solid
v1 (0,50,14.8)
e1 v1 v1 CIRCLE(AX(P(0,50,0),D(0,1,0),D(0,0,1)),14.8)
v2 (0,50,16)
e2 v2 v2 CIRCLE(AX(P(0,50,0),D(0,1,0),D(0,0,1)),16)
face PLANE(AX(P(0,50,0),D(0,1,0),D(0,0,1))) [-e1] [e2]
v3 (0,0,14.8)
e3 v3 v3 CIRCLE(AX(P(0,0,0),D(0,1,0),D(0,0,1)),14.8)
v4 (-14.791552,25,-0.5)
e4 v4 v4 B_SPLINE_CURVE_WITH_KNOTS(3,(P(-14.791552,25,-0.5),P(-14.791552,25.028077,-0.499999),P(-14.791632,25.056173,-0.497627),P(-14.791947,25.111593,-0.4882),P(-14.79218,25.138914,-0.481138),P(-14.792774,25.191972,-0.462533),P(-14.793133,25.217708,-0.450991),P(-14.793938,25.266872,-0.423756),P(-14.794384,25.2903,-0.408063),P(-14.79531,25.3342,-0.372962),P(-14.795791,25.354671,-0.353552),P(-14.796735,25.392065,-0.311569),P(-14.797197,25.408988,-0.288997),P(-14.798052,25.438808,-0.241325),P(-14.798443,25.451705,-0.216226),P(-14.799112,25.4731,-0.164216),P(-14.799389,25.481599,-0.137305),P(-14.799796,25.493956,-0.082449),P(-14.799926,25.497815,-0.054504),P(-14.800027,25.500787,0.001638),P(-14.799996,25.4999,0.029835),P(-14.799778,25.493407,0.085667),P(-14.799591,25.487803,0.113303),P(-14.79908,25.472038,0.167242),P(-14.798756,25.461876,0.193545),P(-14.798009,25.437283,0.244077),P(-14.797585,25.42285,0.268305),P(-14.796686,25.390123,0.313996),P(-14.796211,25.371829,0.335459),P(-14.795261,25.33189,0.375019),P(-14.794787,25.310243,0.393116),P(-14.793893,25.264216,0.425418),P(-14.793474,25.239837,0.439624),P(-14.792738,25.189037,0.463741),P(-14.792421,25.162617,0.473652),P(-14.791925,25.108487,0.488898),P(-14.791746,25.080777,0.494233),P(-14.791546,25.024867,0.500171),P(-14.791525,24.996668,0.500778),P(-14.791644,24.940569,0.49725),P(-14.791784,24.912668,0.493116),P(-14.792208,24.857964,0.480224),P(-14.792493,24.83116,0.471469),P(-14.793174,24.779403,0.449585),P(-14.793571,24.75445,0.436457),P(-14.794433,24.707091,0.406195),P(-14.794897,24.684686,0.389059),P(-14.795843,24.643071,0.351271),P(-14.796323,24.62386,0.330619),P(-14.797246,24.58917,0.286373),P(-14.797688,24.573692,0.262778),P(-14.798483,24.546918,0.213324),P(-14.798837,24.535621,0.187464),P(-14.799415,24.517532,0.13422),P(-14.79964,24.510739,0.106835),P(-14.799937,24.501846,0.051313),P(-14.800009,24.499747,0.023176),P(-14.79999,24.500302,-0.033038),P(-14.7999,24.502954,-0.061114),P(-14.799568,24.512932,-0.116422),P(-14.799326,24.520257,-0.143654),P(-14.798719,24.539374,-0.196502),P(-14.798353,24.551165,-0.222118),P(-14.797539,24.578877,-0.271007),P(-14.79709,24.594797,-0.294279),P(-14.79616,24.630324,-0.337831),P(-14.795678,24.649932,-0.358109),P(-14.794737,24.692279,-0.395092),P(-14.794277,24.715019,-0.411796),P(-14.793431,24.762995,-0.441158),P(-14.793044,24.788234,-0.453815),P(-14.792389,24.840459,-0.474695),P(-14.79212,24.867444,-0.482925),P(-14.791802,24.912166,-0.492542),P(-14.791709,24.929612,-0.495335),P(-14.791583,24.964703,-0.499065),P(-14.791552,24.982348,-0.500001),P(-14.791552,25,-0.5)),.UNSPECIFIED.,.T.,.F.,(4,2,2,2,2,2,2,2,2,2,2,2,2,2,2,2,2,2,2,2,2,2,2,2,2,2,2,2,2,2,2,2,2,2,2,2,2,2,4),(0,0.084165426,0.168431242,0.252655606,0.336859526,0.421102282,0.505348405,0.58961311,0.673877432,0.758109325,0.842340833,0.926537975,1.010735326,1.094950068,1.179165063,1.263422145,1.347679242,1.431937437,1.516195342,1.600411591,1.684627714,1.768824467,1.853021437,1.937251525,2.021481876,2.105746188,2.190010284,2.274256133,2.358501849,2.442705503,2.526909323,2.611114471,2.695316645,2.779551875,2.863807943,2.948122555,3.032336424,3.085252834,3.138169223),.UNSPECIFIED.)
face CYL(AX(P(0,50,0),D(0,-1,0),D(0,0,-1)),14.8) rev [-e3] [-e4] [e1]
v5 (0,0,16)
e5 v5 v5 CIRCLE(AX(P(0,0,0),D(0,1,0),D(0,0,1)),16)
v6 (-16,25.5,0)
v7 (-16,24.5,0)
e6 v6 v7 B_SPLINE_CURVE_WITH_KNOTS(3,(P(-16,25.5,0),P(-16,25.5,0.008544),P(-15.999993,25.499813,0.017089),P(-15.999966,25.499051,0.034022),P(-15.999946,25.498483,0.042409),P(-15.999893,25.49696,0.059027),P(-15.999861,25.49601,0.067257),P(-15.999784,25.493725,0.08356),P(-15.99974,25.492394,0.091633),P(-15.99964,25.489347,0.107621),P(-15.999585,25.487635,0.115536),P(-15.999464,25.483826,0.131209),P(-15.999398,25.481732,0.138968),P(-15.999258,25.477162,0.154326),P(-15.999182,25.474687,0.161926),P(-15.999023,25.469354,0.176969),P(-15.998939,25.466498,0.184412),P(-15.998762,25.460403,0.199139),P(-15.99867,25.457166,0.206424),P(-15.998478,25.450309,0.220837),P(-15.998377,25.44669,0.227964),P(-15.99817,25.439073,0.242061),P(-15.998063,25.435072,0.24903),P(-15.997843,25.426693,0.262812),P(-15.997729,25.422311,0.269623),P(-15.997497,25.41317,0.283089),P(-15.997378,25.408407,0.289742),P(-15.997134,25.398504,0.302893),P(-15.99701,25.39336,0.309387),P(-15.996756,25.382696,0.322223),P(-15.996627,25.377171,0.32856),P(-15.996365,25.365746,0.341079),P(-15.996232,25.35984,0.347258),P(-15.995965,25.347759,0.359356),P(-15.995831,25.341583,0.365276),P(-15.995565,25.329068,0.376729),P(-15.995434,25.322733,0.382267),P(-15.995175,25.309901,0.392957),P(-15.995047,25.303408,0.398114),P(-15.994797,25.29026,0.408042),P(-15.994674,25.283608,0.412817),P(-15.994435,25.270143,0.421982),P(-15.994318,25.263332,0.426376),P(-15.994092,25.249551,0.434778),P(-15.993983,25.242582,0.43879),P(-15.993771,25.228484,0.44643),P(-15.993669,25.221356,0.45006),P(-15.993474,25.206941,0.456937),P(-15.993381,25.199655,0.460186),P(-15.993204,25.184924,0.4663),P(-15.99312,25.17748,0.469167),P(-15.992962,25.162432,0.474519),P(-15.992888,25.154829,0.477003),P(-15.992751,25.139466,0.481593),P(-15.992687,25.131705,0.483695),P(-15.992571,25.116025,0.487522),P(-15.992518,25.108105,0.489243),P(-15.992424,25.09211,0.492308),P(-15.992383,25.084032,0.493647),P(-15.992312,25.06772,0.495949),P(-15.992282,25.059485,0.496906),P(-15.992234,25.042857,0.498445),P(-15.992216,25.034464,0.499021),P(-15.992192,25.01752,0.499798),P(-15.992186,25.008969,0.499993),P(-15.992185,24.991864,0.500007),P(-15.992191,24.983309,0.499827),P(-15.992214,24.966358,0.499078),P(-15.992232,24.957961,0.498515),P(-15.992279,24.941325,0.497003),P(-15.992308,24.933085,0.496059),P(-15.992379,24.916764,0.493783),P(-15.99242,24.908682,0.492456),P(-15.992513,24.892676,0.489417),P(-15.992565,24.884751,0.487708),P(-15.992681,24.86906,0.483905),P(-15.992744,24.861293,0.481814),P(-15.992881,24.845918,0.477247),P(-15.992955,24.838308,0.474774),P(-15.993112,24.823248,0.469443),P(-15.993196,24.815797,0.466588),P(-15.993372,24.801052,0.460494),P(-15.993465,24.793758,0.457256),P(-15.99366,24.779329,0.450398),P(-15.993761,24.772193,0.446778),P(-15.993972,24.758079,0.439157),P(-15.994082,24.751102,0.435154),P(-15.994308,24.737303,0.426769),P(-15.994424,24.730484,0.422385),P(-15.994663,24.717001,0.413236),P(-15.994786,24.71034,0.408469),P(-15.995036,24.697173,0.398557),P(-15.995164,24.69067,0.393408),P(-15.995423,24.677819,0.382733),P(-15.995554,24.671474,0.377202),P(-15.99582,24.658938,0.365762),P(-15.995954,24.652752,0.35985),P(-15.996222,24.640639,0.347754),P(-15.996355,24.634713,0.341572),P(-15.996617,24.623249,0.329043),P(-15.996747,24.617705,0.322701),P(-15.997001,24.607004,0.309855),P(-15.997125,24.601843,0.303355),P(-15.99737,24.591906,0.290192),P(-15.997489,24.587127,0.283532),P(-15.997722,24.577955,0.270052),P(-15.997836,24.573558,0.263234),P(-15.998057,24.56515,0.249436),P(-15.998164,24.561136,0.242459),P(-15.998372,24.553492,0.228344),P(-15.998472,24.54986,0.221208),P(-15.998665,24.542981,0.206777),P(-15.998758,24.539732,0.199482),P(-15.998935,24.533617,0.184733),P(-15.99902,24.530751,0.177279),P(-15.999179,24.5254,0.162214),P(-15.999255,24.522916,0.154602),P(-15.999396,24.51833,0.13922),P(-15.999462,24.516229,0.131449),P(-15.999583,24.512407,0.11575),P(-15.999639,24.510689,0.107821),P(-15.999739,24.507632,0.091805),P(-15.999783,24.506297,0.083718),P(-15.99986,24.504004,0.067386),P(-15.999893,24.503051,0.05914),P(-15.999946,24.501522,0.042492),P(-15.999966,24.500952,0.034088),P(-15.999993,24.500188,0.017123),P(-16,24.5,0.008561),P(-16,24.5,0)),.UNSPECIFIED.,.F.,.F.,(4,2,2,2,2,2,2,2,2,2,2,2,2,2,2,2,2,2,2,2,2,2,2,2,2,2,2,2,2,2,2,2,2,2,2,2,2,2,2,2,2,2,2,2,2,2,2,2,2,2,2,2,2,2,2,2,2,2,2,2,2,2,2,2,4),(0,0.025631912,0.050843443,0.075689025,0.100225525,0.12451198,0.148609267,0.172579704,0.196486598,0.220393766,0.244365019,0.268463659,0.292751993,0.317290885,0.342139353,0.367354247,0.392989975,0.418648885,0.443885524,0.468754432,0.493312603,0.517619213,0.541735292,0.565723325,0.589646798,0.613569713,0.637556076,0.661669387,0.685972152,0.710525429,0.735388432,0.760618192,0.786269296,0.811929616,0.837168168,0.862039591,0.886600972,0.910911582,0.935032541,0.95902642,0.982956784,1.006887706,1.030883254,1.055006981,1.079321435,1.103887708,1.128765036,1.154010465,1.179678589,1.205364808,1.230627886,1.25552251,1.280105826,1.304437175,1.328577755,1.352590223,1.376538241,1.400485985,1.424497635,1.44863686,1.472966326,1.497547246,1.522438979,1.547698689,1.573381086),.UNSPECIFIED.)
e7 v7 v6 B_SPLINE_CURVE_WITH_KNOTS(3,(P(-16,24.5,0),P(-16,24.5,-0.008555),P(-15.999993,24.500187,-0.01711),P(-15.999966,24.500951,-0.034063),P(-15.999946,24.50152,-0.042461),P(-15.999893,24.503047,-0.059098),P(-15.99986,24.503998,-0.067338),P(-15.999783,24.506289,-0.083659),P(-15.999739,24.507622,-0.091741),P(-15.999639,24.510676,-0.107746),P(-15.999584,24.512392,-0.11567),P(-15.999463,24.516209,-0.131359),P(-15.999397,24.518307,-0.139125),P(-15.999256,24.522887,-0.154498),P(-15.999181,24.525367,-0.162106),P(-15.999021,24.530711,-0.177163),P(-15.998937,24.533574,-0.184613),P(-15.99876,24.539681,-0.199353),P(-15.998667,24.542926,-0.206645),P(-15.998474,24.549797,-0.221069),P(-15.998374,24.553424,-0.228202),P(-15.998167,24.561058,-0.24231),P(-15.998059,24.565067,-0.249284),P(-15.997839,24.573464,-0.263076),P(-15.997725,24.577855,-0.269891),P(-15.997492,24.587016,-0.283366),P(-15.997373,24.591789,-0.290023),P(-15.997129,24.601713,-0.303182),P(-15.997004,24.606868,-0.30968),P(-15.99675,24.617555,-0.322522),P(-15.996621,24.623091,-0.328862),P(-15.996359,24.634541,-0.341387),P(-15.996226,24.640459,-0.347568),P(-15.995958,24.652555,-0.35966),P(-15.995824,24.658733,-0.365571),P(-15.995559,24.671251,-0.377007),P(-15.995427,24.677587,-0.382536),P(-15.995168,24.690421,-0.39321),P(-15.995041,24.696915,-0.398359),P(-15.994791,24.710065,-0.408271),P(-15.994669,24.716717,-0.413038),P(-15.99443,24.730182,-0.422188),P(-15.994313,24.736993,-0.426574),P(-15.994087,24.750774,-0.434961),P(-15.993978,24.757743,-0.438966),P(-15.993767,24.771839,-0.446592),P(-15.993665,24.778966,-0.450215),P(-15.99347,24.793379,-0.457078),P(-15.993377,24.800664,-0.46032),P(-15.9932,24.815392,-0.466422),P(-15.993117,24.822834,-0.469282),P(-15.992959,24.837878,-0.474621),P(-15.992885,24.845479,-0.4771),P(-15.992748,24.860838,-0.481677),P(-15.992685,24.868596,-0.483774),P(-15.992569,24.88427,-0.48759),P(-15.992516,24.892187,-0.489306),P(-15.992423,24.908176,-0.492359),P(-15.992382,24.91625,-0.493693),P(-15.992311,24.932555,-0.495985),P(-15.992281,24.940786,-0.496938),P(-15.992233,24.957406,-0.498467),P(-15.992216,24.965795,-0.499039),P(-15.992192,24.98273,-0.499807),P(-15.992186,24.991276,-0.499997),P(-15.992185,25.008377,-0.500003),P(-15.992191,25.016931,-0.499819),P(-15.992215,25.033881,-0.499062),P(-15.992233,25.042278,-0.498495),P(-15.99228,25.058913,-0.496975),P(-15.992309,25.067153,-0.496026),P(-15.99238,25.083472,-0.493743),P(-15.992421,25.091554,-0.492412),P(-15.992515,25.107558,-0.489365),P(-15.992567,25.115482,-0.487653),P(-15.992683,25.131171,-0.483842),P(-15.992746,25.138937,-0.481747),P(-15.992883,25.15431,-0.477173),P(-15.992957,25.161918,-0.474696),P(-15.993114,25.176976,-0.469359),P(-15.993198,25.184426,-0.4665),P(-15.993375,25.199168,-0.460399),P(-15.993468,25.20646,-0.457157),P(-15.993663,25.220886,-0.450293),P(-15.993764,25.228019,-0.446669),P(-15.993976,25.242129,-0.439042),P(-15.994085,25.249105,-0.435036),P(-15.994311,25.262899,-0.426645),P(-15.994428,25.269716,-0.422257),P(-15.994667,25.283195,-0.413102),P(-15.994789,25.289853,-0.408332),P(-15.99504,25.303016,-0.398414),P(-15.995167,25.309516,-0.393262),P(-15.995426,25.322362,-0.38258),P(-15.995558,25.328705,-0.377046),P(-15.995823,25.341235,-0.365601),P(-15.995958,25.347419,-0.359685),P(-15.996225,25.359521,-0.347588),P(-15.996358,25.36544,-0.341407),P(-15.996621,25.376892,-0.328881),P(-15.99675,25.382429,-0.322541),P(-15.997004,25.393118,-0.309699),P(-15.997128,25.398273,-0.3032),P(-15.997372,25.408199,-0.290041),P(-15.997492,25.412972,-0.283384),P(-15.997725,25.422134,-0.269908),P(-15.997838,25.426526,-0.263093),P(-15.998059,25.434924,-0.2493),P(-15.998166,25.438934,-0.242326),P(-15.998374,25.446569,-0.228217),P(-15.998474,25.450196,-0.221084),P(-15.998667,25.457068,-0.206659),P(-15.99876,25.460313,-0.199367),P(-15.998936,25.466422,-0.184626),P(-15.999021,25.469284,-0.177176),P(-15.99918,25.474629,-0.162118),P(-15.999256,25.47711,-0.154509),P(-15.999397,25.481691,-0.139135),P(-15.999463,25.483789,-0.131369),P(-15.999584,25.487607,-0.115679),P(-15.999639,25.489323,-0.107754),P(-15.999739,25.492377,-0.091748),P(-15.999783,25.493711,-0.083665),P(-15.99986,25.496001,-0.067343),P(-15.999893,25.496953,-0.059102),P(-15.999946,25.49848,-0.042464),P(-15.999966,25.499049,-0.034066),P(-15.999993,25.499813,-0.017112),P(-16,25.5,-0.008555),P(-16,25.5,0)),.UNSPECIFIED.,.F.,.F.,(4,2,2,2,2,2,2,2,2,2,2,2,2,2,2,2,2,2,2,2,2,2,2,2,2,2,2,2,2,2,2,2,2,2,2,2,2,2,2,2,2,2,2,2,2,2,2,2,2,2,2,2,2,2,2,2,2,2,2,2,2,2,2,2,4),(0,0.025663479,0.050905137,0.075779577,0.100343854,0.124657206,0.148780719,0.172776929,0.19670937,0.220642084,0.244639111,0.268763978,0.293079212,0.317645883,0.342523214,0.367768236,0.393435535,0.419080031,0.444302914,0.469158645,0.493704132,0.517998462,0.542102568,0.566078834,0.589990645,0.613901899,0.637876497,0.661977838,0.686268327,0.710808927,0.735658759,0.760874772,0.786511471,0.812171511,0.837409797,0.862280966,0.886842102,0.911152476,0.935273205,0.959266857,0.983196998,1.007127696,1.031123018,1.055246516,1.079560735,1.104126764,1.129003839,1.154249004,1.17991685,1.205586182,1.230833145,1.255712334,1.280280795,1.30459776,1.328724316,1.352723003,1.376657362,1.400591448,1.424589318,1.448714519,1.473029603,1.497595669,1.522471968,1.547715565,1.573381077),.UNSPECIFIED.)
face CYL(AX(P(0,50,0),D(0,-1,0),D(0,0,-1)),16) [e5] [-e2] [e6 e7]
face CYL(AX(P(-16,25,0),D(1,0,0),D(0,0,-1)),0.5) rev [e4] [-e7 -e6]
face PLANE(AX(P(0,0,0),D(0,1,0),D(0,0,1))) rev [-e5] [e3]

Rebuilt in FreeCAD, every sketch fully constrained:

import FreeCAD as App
import Part
import Sketcher
from FreeCAD import Vector

doc = App.newDocument("Part")
params = doc.addObject("Spreadsheet::Sheet", "Params")
for row, (alias, value) in enumerate([
    ("sketch1_diameter", "32 mm"),
    ("sketch1_diameter2", "29.6 mm"),
    ("pad1_length", "50 mm"),
    ("sketch2_diameter", "1 mm"),
], start=1):
    params.set(f"A{row}", alias)
    params.set(f"B{row}", "=" + value)
    params.setAlias(f"B{row}", alias)

body = doc.addObject("PartDesign::Body", "Body")

# Sketch on XZ plane
sketch1 = body.newObject("Sketcher::SketchObject", "Sketch")
sketch1.AttachmentSupport = (doc.getObject("XZ_Plane"), [""])
sketch1.MapMode = "FlatFace"
sketch1.addGeometry([
    Part.Circle(Vector(0, 0, 0), Vector(0, 0, 1), 16),
    Part.Circle(Vector(0, 0, 0), Vector(0, 0, 1), 14.8),
], False)
sketch1.addConstraint([
    Sketcher.Constraint("Coincident", 0, 3, -1, 1),
    Sketcher.Constraint("Coincident", 1, 3, -1, 1),
    Sketcher.Constraint("Diameter", 0, 32.0),
    Sketcher.Constraint("Diameter", 1, 29.6),
])
sketch1.setExpression("Constraints[2]", "Params.sketch1_diameter")
sketch1.setExpression("Constraints[3]", "Params.sketch1_diameter2")
pad1 = body.newObject("PartDesign::Pad", "Pad")
pad1.Profile = sketch1
pad1.setExpression("Length", "Params.pad1_length")
pad1.Reversed = True

# Sketch on YZ plane
sketch2 = body.newObject("Sketcher::SketchObject", "Sketch001")
sketch2.AttachmentSupport = (doc.getObject("YZ_Plane"), [""])
sketch2.MapMode = "FlatFace"
sketch2.addGeometry(Part.Circle(Vector(25, 0, 0), Vector(0, 0, 1), 0.5), False)
sketch2.addConstraint([
    Sketcher.Constraint("PointOnObject", 0, 3, -1),
    Sketcher.Constraint("Diameter", 0, 1.0),
    Sketcher.Constraint("DistanceX", -1, 1, 0, 3, 25.0),
])
sketch2.setExpression("Constraints[1]", "Params.sketch2_diameter")
pocket1 = body.newObject("PartDesign::Pocket", "Pocket")
pocket1.Profile = sketch2
pocket1.Type = "ThroughAll"

doc.recompute()
